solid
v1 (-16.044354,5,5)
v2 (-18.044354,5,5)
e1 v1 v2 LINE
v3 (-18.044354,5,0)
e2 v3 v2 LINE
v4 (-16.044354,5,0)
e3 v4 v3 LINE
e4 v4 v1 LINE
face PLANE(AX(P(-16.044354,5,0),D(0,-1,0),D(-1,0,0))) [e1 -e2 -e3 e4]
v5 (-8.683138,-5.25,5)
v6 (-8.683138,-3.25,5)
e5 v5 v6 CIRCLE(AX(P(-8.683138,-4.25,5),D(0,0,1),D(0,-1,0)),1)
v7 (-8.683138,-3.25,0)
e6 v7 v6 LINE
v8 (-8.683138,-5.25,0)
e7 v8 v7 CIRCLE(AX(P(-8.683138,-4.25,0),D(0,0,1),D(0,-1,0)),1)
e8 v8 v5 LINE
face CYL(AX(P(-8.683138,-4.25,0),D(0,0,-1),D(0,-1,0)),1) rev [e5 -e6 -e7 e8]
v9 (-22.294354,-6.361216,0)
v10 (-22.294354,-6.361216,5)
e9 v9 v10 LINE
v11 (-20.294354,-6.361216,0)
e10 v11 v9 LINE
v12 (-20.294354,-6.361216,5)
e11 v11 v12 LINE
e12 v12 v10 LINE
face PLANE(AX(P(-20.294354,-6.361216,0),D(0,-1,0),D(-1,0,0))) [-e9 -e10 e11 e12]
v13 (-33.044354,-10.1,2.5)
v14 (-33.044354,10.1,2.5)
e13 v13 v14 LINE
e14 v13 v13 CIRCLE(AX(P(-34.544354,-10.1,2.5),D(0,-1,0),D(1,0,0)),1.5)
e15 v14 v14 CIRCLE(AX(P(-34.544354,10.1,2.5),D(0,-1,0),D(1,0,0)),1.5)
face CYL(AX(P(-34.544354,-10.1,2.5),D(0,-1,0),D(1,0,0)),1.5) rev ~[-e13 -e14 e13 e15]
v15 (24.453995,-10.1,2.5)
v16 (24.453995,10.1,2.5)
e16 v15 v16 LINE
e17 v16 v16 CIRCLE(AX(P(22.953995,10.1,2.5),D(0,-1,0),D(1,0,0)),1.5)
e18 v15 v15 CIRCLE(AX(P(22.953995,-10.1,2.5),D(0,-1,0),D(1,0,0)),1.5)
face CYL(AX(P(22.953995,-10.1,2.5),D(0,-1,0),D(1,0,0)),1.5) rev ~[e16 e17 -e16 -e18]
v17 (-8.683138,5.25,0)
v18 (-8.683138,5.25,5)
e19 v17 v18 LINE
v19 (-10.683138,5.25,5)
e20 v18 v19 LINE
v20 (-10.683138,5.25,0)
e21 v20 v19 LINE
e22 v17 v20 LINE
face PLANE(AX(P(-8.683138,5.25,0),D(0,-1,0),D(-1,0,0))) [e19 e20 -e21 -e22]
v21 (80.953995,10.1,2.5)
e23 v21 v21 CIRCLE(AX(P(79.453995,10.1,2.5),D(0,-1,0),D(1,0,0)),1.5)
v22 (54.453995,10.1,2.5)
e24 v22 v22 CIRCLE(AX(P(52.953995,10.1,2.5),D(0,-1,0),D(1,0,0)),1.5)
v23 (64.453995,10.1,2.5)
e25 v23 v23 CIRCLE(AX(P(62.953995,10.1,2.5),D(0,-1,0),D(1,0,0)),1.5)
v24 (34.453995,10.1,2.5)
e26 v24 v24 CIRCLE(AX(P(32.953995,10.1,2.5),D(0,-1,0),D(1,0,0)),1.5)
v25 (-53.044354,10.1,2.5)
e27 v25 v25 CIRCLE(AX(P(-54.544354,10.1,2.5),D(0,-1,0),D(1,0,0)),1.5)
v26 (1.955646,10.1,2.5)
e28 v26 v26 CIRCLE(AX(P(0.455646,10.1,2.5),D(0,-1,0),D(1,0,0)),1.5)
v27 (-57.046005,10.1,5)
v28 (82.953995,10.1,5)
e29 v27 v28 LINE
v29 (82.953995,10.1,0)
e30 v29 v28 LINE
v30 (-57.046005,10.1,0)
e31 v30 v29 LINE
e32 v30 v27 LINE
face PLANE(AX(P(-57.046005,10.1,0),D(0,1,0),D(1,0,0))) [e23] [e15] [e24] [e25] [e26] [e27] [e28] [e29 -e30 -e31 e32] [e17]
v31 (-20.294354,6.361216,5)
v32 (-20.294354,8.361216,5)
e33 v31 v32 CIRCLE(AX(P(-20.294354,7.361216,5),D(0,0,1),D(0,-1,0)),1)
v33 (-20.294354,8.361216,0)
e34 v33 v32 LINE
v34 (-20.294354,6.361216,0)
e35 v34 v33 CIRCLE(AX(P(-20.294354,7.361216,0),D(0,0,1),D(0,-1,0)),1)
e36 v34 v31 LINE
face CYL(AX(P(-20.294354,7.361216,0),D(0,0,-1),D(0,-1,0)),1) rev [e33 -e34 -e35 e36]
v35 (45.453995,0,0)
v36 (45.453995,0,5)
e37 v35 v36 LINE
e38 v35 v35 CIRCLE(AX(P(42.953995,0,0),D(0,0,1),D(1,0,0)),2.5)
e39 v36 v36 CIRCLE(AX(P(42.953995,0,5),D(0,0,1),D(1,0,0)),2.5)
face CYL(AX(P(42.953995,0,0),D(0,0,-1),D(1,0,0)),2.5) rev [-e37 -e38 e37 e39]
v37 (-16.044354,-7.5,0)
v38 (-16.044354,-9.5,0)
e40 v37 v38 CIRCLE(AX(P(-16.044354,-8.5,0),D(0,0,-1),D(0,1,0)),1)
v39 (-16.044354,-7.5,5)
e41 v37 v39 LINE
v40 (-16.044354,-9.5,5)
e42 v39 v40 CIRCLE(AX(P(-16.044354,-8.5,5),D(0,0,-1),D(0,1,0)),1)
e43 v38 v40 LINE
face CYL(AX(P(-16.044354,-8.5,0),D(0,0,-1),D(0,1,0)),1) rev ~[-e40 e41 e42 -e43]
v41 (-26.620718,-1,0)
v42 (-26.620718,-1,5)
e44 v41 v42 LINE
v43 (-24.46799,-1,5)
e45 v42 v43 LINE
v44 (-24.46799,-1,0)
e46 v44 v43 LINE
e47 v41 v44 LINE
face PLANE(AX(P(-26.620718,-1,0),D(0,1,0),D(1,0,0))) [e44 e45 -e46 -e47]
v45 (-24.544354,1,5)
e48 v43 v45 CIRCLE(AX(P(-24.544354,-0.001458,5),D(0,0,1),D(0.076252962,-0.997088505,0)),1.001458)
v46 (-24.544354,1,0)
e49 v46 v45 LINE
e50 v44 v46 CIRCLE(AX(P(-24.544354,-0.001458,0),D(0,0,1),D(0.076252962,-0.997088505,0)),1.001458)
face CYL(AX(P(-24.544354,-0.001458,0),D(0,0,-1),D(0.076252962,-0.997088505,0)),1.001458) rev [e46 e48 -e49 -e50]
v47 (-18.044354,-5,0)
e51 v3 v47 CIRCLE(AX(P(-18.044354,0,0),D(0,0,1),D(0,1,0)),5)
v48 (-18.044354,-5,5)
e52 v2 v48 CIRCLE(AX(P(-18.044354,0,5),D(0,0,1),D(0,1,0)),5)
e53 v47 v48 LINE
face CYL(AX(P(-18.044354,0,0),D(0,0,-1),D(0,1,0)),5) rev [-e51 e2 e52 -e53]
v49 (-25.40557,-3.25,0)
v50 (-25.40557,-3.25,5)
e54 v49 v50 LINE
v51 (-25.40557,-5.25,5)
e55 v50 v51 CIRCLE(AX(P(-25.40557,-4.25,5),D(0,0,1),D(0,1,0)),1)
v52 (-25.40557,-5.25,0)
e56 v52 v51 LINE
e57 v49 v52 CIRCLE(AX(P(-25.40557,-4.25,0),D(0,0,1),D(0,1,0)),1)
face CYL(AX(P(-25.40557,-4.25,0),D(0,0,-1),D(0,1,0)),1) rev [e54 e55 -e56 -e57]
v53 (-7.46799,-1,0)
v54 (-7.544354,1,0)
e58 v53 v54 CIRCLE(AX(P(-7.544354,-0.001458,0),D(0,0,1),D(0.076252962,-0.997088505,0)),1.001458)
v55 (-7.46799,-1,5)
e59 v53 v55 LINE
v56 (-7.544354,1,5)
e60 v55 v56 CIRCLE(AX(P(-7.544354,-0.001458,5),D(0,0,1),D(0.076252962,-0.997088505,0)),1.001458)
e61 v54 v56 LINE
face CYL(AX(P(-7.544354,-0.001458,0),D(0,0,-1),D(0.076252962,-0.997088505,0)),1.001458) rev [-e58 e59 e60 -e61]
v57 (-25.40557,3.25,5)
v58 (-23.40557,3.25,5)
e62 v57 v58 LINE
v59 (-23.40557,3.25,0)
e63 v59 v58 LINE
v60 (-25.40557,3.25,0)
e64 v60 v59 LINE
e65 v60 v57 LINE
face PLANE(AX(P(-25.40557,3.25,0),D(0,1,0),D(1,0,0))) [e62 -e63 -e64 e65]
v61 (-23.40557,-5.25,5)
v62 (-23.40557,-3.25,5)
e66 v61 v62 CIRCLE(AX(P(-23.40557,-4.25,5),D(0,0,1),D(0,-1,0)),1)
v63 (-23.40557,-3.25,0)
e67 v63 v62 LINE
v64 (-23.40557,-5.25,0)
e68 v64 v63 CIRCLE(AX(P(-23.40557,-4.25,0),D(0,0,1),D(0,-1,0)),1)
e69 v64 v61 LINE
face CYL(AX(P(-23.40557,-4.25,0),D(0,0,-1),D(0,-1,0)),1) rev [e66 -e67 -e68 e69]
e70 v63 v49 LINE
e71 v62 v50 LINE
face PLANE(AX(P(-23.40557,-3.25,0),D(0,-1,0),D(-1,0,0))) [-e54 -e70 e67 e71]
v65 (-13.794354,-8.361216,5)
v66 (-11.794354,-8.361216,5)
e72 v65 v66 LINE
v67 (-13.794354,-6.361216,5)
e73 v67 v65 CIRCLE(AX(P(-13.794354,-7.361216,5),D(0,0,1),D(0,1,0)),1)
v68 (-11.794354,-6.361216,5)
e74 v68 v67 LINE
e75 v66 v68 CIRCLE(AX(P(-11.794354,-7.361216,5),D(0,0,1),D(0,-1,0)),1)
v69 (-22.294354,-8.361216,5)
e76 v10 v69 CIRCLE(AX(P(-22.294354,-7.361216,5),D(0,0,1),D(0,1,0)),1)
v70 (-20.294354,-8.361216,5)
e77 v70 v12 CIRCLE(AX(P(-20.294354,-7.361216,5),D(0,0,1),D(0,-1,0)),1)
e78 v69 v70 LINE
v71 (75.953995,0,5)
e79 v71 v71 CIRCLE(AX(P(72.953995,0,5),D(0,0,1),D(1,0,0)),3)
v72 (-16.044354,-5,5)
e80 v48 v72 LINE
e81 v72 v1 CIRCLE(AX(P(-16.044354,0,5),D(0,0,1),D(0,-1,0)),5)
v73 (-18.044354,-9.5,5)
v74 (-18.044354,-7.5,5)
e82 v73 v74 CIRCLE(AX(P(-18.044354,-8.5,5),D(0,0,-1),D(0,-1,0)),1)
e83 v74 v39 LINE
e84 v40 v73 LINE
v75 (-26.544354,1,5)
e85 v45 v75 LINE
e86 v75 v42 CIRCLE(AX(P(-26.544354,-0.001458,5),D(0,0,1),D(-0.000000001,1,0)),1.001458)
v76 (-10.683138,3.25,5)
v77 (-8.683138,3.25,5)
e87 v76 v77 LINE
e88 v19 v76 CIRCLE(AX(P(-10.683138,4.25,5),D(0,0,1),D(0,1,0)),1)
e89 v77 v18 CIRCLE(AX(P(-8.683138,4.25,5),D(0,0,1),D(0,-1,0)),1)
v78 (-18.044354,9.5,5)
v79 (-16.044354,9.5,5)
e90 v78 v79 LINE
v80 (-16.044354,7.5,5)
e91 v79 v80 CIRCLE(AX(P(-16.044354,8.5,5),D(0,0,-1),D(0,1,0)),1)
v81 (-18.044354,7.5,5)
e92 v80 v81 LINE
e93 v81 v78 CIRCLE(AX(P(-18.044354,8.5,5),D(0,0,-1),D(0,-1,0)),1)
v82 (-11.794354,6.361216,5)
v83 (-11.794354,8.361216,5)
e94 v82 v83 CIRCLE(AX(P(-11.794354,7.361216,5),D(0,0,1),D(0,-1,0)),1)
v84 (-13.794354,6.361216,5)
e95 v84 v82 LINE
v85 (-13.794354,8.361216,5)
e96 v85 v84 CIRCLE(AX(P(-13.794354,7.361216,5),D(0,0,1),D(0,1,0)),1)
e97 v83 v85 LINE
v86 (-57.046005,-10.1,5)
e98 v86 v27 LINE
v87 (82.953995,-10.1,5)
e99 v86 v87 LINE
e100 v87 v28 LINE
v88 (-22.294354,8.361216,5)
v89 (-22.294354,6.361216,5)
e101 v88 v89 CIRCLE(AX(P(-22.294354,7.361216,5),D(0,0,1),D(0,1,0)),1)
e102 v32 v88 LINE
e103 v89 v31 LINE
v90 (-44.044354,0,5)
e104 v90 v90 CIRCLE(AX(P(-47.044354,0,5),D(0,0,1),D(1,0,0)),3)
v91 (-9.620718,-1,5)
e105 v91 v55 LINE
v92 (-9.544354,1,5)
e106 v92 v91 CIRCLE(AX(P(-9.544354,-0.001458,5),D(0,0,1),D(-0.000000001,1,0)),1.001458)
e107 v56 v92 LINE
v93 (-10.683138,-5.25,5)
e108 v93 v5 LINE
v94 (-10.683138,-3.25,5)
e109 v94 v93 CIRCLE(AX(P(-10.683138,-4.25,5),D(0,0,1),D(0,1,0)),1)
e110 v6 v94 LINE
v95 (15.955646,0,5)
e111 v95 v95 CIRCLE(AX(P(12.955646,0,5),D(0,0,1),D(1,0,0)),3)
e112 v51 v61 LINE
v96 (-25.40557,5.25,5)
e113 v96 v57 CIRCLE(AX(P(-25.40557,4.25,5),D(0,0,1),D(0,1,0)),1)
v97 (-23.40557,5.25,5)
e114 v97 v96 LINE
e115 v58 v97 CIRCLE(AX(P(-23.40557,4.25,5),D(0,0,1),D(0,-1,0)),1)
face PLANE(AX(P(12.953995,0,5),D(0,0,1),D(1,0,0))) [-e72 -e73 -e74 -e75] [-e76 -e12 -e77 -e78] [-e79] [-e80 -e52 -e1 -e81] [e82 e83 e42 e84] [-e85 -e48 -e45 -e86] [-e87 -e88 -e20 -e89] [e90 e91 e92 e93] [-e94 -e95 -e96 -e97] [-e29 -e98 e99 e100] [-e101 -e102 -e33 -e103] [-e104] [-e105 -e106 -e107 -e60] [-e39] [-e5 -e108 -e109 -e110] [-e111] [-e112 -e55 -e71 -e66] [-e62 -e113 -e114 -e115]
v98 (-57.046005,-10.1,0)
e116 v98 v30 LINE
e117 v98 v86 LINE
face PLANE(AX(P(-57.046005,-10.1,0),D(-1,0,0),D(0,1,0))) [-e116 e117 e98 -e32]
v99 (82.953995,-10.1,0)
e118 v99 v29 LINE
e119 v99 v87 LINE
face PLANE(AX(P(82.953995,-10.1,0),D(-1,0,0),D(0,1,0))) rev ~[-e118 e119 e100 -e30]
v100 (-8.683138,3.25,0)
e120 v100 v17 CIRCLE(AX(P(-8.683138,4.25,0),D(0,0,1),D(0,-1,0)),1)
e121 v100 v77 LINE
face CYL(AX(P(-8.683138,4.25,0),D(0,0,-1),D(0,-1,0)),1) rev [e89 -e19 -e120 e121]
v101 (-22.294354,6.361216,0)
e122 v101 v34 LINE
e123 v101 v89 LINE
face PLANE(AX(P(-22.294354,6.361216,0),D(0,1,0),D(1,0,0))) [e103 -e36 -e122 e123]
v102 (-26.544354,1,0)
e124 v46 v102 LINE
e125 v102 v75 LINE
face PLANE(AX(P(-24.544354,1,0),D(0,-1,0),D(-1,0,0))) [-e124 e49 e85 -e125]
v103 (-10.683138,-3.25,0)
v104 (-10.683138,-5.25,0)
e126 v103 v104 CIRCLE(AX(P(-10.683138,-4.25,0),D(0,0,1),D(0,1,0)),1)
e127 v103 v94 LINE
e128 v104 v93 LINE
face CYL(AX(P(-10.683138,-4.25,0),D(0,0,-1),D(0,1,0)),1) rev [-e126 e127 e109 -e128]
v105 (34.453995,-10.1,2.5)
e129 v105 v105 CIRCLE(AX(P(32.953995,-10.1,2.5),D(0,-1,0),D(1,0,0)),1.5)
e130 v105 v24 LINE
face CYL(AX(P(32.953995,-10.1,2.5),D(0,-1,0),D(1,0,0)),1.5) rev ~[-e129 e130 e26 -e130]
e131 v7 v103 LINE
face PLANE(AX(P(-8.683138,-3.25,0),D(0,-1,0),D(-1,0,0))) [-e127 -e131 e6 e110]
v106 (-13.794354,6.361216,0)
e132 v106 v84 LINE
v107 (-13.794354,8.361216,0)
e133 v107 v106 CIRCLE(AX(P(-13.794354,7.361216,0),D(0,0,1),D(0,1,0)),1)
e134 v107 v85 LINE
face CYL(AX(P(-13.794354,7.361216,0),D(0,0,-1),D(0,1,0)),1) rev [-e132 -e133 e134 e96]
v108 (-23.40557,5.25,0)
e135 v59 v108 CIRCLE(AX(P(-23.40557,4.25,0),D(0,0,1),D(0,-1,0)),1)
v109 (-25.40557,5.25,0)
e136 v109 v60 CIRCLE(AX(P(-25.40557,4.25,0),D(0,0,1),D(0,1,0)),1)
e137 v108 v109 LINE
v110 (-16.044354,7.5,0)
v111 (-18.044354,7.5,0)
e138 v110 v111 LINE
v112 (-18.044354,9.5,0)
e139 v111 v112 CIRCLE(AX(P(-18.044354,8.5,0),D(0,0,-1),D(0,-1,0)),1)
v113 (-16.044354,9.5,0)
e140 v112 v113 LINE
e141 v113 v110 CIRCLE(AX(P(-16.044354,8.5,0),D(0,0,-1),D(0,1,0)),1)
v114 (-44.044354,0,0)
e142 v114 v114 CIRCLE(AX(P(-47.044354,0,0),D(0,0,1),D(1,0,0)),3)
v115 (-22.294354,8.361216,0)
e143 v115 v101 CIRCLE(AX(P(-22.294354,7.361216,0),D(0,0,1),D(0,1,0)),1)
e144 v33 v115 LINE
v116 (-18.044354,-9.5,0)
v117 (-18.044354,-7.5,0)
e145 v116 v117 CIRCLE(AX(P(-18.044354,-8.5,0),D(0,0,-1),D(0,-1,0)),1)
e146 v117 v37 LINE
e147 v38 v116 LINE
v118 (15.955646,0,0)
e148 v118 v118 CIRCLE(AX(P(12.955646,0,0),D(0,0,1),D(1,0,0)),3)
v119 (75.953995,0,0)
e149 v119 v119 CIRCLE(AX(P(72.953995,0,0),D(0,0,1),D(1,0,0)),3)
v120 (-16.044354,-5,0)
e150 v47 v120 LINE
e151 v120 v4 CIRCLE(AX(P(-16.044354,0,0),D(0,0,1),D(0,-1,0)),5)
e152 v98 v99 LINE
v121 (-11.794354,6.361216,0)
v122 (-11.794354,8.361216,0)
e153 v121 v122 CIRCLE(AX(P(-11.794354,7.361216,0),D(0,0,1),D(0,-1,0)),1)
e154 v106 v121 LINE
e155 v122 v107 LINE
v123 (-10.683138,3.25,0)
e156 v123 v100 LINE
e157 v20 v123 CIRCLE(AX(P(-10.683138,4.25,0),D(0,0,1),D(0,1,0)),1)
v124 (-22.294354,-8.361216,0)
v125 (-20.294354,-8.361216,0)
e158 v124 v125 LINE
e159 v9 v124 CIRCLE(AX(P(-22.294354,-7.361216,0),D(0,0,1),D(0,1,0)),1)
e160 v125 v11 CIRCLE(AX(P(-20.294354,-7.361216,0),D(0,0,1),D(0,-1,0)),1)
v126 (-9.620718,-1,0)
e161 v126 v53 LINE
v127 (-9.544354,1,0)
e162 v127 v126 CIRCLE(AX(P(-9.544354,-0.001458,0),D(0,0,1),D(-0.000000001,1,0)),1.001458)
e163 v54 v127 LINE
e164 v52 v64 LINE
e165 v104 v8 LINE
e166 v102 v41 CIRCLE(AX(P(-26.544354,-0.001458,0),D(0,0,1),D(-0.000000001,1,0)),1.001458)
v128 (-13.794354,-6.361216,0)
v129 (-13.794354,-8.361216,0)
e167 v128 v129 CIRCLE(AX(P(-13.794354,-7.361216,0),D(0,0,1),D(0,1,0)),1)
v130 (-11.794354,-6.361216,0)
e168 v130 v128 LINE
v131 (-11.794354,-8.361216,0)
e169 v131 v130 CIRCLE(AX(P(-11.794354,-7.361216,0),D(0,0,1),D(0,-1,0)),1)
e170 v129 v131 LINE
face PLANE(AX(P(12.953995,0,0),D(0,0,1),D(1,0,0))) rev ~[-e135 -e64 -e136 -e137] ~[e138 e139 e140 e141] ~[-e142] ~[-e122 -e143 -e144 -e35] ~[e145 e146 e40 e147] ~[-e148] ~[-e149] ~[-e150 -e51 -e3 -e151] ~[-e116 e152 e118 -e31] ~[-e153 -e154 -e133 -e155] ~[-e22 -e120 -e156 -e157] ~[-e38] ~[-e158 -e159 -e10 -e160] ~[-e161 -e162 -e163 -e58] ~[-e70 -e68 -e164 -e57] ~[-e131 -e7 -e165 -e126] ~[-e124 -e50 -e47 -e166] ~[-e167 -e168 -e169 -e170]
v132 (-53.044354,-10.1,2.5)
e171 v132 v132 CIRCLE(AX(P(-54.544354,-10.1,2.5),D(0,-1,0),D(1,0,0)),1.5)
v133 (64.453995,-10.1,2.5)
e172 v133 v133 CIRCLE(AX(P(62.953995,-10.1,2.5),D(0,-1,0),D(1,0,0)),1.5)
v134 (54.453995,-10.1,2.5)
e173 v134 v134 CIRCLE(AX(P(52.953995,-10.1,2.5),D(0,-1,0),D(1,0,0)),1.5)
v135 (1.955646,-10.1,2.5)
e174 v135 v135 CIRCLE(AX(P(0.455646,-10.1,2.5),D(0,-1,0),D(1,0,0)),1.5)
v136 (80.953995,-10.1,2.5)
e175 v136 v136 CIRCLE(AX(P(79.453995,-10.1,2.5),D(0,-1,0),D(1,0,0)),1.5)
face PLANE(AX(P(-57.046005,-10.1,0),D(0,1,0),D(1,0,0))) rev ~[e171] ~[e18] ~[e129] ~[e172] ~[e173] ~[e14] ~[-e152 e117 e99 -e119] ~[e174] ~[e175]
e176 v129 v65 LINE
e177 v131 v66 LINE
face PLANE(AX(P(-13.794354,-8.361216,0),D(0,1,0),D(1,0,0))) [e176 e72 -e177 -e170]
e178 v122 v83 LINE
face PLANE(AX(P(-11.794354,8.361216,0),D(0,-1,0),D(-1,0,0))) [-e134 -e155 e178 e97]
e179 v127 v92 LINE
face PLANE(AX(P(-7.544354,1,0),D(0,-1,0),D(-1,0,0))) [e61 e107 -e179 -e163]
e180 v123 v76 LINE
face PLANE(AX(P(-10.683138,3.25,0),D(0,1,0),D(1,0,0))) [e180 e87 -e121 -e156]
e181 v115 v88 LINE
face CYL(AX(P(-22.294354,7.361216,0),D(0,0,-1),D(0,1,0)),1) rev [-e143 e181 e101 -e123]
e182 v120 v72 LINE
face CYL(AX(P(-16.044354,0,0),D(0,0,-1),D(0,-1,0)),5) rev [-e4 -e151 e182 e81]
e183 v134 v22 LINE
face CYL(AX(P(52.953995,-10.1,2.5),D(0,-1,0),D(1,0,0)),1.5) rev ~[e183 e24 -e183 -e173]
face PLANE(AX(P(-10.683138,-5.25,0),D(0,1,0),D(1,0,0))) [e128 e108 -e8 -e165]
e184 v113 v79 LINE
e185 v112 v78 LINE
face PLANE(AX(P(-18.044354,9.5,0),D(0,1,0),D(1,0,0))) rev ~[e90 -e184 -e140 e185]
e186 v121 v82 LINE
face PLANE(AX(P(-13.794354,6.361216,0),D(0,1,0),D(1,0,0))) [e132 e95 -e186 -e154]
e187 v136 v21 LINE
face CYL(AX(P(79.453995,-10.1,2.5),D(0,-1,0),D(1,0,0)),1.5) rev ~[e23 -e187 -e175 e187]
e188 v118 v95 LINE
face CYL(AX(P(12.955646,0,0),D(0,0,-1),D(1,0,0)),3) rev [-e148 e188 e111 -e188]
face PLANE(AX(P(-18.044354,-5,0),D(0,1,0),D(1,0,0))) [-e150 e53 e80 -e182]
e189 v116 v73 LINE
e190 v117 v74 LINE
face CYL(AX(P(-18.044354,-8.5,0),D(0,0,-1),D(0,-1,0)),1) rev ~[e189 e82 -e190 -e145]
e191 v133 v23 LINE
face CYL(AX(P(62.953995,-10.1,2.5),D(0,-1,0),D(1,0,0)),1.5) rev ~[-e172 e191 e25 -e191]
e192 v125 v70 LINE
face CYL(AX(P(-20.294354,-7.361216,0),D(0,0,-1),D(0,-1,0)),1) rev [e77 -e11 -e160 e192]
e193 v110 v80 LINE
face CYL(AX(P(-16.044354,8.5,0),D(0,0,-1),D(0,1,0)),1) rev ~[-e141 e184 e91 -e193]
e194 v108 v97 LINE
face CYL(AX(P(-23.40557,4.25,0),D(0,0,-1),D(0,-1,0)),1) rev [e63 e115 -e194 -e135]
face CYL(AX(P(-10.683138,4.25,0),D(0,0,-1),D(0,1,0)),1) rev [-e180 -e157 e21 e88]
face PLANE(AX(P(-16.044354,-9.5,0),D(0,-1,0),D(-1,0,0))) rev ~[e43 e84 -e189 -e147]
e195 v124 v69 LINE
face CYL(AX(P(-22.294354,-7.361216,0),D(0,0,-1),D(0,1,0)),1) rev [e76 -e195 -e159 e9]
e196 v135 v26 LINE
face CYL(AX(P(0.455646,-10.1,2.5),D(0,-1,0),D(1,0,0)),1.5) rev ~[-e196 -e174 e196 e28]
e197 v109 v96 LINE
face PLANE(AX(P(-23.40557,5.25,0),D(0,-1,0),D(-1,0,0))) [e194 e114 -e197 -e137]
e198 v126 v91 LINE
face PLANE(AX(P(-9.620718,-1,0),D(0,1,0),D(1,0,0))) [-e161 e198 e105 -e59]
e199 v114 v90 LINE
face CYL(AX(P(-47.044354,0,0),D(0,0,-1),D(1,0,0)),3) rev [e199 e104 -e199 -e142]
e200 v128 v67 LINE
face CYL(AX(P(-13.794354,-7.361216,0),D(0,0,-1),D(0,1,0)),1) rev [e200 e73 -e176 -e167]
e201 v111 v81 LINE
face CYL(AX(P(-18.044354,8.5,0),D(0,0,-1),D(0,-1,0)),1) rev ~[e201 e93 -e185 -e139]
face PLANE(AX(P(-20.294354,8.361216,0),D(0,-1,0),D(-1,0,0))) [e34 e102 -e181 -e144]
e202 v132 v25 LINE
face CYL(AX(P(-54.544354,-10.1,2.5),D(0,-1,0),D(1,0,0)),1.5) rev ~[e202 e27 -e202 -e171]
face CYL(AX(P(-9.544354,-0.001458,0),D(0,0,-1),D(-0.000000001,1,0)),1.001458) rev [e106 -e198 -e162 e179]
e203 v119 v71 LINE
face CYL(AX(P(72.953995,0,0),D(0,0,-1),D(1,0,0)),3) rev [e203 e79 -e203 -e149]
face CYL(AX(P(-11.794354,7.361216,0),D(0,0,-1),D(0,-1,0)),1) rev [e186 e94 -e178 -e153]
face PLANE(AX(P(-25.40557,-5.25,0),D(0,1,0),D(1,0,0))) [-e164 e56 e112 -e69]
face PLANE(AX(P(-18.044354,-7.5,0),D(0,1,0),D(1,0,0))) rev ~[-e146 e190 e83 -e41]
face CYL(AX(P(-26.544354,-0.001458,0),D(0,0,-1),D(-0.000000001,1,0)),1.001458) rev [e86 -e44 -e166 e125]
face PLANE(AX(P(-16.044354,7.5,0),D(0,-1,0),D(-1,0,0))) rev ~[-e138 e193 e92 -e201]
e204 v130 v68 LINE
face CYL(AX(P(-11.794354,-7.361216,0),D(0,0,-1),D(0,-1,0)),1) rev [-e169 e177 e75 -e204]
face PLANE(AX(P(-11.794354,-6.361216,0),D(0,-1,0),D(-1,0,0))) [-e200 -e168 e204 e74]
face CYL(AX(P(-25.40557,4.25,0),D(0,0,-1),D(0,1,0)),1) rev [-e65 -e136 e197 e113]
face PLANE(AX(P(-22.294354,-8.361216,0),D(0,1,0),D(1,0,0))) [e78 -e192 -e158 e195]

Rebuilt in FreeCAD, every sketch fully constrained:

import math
import FreeCAD as App
import Part
import Sketcher
from FreeCAD import Vector
Q = App.Units.Quantity


def add_polygon(sketch, points):
    """Adds a closed chain of lines whose ends are joined by coincident constraints."""
    first, n = sketch.GeometryCount, len(points)
    for a, b in zip(points, points[1:] + points[:1]):
        sketch.addGeometry(Part.LineSegment(App.Vector(*a, 0), App.Vector(*b, 0)), False)
    for i in range(n):
        sketch.addConstraint(Sketcher.Constraint("Coincident", first + i, 2, first + (i + 1) % n, 1))

doc = App.newDocument("Part")
body = doc.addObject("PartDesign::Body", "Body")

# Sketch on XY plane
sketch1 = body.newObject("Sketcher::SketchObject", "Sketch")
sketch1.AttachmentSupport = (doc.getObject("XY_Plane"), [""])
sketch1.MapMode = "FlatFace"
add_polygon(sketch1, [(-57, 10.1), (-57, -10.1), (83, -10.1), (83, 10.1)])  # lines 0-3
sketch1.addGeometry(Part.LineSegment(Vector(-22.3, -6.4, 0), Vector(-20.3, -6.4, 0)), False)  # 4
sketch1.addGeometry(Part.ArcOfCircle(Part.Circle(Vector(-20.3, -7.4, 0), Vector(0, 0, 1), 1), math.radians(-90), math.radians(90)), False)  # 5
sketch1.addGeometry(Part.LineSegment(Vector(-20.3, -8.4, 0), Vector(-22.3, -8.4, 0)), False)  # 6
sketch1.addGeometry(Part.ArcOfCircle(Part.Circle(Vector(-22.3, -7.4, 0), Vector(0, 0, 1), 1), math.radians(90), math.radians(270)), False)  # 7
sketch1.addGeometry(Part.ArcOfCircle(Part.Circle(Vector(-16, -8.5, 0), Vector(0, 0, 1), 1), math.radians(-90), math.radians(90)), False)  # 8
sketch1.addGeometry(Part.LineSegment(Vector(-16, -9.5, 0), Vector(-18, -9.5, 0)), False)  # 9
sketch1.addGeometry(Part.ArcOfCircle(Part.Circle(Vector(-18, -8.5, 0), Vector(0, 0, 1), 1), math.radians(90), math.radians(270)), False)  # 10
sketch1.addGeometry(Part.LineSegment(Vector(-18, -7.5, 0), Vector(-16, -7.5, 0)), False)  # 11
sketch1.addGeometry(Part.LineSegment(Vector(-11.8, -8.4, 0), Vector(-13.8, -8.4, 0)), False)  # 12
sketch1.addGeometry(Part.ArcOfCircle(Part.Circle(Vector(-13.8, -7.4, 0), Vector(0, 0, 1), 1), math.radians(90), math.radians(270)), False)  # 13
sketch1.addGeometry(Part.LineSegment(Vector(-13.8, -6.4, 0), Vector(-11.8, -6.4, 0)), False)  # 14
sketch1.addGeometry(Part.ArcOfCircle(Part.Circle(Vector(-11.8, -7.4, 0), Vector(0, 0, 1), 1), math.radians(-90), math.radians(90)), False)  # 15
sketch1.addGeometry(Part.LineSegment(Vector(-25.4, -3.2, 0), Vector(-23.4, -3.2, 0)), False)  # 16
sketch1.addGeometry(Part.ArcOfCircle(Part.Circle(Vector(-23.4, -4.2, 0), Vector(0, 0, 1), 1), math.radians(-90), math.radians(90)), False)  # 17
sketch1.addGeometry(Part.LineSegment(Vector(-23.4, -5.2, 0), Vector(-25.4, -5.2, 0)), False)  # 18
sketch1.addGeometry(Part.ArcOfCircle(Part.Circle(Vector(-25.4, -4.2, 0), Vector(0, 0, 1), 1), math.radians(90), math.radians(270)), False)  # 19
sketch1.addGeometry(Part.LineSegment(Vector(-8.7, -5.2, 0), Vector(-10.7, -5.2, 0)), False)  # 20
sketch1.addGeometry(Part.ArcOfCircle(Part.Circle(Vector(-10.7, -4.2, 0), Vector(0, 0, 1), 1), math.radians(90), math.radians(270)), False)  # 21
sketch1.addGeometry(Part.LineSegment(Vector(-10.7, -3.2, 0), Vector(-8.7, -3.2, 0)), False)  # 22
sketch1.addGeometry(Part.ArcOfCircle(Part.Circle(Vector(-8.7, -4.2, 0), Vector(0, 0, 1), 1), math.radians(-90), math.radians(90)), False)  # 23
sketch1.addGeometry(Part.Circle(Vector(-47, 0, 0), Vector(0, 0, 1), 3), False)  # 24
sketch1.addGeometry(Part.LineSegment(Vector(-26.5, 1, 0), Vector(-24.5, 1, 0)), False)  # 25
sketch1.addGeometry(Part.ArcOfCircle(Part.Circle(Vector(-24.5, 0, 0), Vector(0, 0, 1), 1), math.radians(-86), math.radians(90)), False)  # 26
sketch1.addGeometry(Part.LineSegment(Vector(-24.5, -1, 0), Vector(-26.6, -1, 0)), False)  # 27
sketch1.addGeometry(Part.ArcOfCircle(Part.Circle(Vector(-26.5, 0, 0), Vector(0, 0, 1), 1), math.radians(90), math.radians(266)), False)  # 28
sketch1.addGeometry(Part.LineSegment(Vector(-25.4, 5.2, 0), Vector(-23.4, 5.2, 0)), False)  # 29
sketch1.addGeometry(Part.ArcOfCircle(Part.Circle(Vector(-23.4, 4.2, 0), Vector(0, 0, 1), 1), math.radians(-90), math.radians(90)), False)  # 30
sketch1.addGeometry(Part.LineSegment(Vector(-23.4, 3.2, 0), Vector(-25.4, 3.2, 0)), False)  # 31
sketch1.addGeometry(Part.ArcOfCircle(Part.Circle(Vector(-25.4, 4.2, 0), Vector(0, 0, 1), 1), math.radians(90), math.radians(270)), False)  # 32
sketch1.addGeometry(Part.LineSegment(Vector(-18, 5, 0), Vector(-16, 5, 0)), False)  # 33
sketch1.addGeometry(Part.ArcOfCircle(Part.Circle(Vector(-16, 0, 0), Vector(0, 0, 1), 5), math.radians(-90), math.radians(90)), False)  # 34
sketch1.addGeometry(Part.LineSegment(Vector(-16, -5, 0), Vector(-18, -5, 0)), False)  # 35
sketch1.addGeometry(Part.ArcOfCircle(Part.Circle(Vector(-18, 0, 0), Vector(0, 0, 1), 5), math.radians(90), math.radians(270)), False)  # 36
sketch1.addGeometry(Part.LineSegment(Vector(-7.5, -1, 0), Vector(-9.6, -1, 0)), False)  # 37
sketch1.addGeometry(Part.ArcOfCircle(Part.Circle(Vector(-9.5, 0, 0), Vector(0, 0, 1), 1), math.radians(90), math.radians(266)), False)  # 38
sketch1.addGeometry(Part.LineSegment(Vector(-9.5, 1, 0), Vector(-7.5, 1, 0)), False)  # 39
sketch1.addGeometry(Part.ArcOfCircle(Part.Circle(Vector(-7.5, 0, 0), Vector(0, 0, 1), 1), math.radians(-86), math.radians(90)), False)  # 40
sketch1.addGeometry(Part.LineSegment(Vector(-8.7, 3.2, 0), Vector(-10.7, 3.2, 0)), False)  # 41
sketch1.addGeometry(Part.ArcOfCircle(Part.Circle(Vector(-10.7, 4.2, 0), Vector(0, 0, 1), 1), math.radians(90), math.radians(270)), False)  # 42
sketch1.addGeometry(Part.LineSegment(Vector(-10.7, 5.2, 0), Vector(-8.7, 5.2, 0)), False)  # 43
sketch1.addGeometry(Part.ArcOfCircle(Part.Circle(Vector(-8.7, 4.2, 0), Vector(0, 0, 1), 1), math.radians(-90), math.radians(90)), False)  # 44
sketch1.addGeometry(Part.LineSegment(Vector(-22.3, 8.4, 0), Vector(-20.3, 8.4, 0)), False)  # 45
sketch1.addGeometry(Part.ArcOfCircle(Part.Circle(Vector(-20.3, 7.4, 0), Vector(0, 0, 1), 1), math.radians(-90), math.radians(90)), False)  # 46
sketch1.addGeometry(Part.LineSegment(Vector(-20.3, 6.4, 0), Vector(-22.3, 6.4, 0)), False)  # 47
sketch1.addGeometry(Part.ArcOfCircle(Part.Circle(Vector(-22.3, 7.4, 0), Vector(0, 0, 1), 1), math.radians(90), math.radians(270)), False)  # 48
sketch1.addGeometry(Part.LineSegment(Vector(-11.8, 6.4, 0), Vector(-13.8, 6.4, 0)), False)  # 49
sketch1.addGeometry(Part.ArcOfCircle(Part.Circle(Vector(-13.8, 7.4, 0), Vector(0, 0, 1), 1), math.radians(90), math.radians(270)), False)  # 50
sketch1.addGeometry(Part.LineSegment(Vector(-13.8, 8.4, 0), Vector(-11.8, 8.4, 0)), False)  # 51
sketch1.addGeometry(Part.ArcOfCircle(Part.Circle(Vector(-11.8, 7.4, 0), Vector(0, 0, 1), 1), math.radians(-90), math.radians(90)), False)  # 52
sketch1.addGeometry(Part.ArcOfCircle(Part.Circle(Vector(-16, 8.5, 0), Vector(0, 0, 1), 1), math.radians(-90), math.radians(90)), False)  # 53
sketch1.addGeometry(Part.LineSegment(Vector(-16, 7.5, 0), Vector(-18, 7.5, 0)), False)  # 54
sketch1.addGeometry(Part.ArcOfCircle(Part.Circle(Vector(-18, 8.5, 0), Vector(0, 0, 1), 1), math.radians(90), math.radians(270)), False)  # 55
sketch1.addGeometry(Part.LineSegment(Vector(-18, 9.5, 0), Vector(-16, 9.5, 0)), False)  # 56
sketch1.addGeometry(Part.Circle(Vector(13, 0, 0), Vector(0, 0, 1), 3), False)  # 57
sketch1.addGeometry(Part.Circle(Vector(43, 0, 0), Vector(0, 0, 1), 2.5), False)  # 58
sketch1.addGeometry(Part.Circle(Vector(73, 0, 0), Vector(0, 0, 1), 3), False)  # 59
sketch1.addConstraint(Sketcher.Constraint("Tangent", 4, 2, 5, 2))
sketch1.addConstraint(Sketcher.Constraint("Tangent", 5, 1, 6, 1))
sketch1.addConstraint(Sketcher.Constraint("Tangent", 6, 2, 7, 2))
sketch1.addConstraint(Sketcher.Constraint("Tangent", 7, 1, 4, 1))
sketch1.addConstraint(Sketcher.Constraint("Tangent", 8, 1, 9, 1))
sketch1.addConstraint(Sketcher.Constraint("Tangent", 9, 2, 10, 2))
sketch1.addConstraint(Sketcher.Constraint("Tangent", 10, 1, 11, 1))
sketch1.addConstraint(Sketcher.Constraint("Tangent", 11, 2, 8, 2))
sketch1.addConstraint(Sketcher.Constraint("Tangent", 12, 2, 13, 2))
sketch1.addConstraint(Sketcher.Constraint("Tangent", 13, 1, 14, 1))
sketch1.addConstraint(Sketcher.Constraint("Tangent", 14, 2, 15, 2))
sketch1.addConstraint(Sketcher.Constraint("Tangent", 15, 1, 12, 1))
sketch1.addConstraint(Sketcher.Constraint("Tangent", 16, 2, 17, 2))
sketch1.addConstraint(Sketcher.Constraint("Tangent", 17, 1, 18, 1))
sketch1.addConstraint(Sketcher.Constraint("Tangent", 18, 2, 19, 2))
sketch1.addConstraint(Sketcher.Constraint("Tangent", 19, 1, 16, 1))
sketch1.addConstraint(Sketcher.Constraint("Tangent", 20, 2, 21, 2))
sketch1.addConstraint(Sketcher.Constraint("Tangent", 21, 1, 22, 1))
sketch1.addConstraint(Sketcher.Constraint("Tangent", 22, 2, 23, 2))
sketch1.addConstraint(Sketcher.Constraint("Tangent", 23, 1, 20, 1))
sketch1.addConstraint(Sketcher.Constraint("Tangent", 25, 2, 26, 2))
sketch1.addConstraint(Sketcher.Constraint("Coincident", 26, 1, 27, 1))
sketch1.addConstraint(Sketcher.Constraint("Coincident", 27, 2, 28, 2))
sketch1.addConstraint(Sketcher.Constraint("Tangent", 28, 1, 25, 1))
sketch1.addConstraint(Sketcher.Constraint("Tangent", 29, 2, 30, 2))
sketch1.addConstraint(Sketcher.Constraint("Tangent", 30, 1, 31, 1))
sketch1.addConstraint(Sketcher.Constraint("Tangent", 31, 2, 32, 2))
sketch1.addConstraint(Sketcher.Constraint("Tangent", 32, 1, 29, 1))
sketch1.addConstraint(Sketcher.Constraint("Tangent", 33, 2, 34, 2))
sketch1.addConstraint(Sketcher.Constraint("Tangent", 34, 1, 35, 1))
sketch1.addConstraint(Sketcher.Constraint("Tangent", 35, 2, 36, 2))
sketch1.addConstraint(Sketcher.Constraint("Tangent", 36, 1, 33, 1))
sketch1.addConstraint(Sketcher.Constraint("Coincident", 37, 2, 38, 2))
sketch1.addConstraint(Sketcher.Constraint("Tangent", 38, 1, 39, 1))
sketch1.addConstraint(Sketcher.Constraint("Tangent", 39, 2, 40, 2))
sketch1.addConstraint(Sketcher.Constraint("Coincident", 40, 1, 37, 1))
sketch1.addConstraint(Sketcher.Constraint("Tangent", 41, 2, 42, 2))
sketch1.addConstraint(Sketcher.Constraint("Tangent", 42, 1, 43, 1))
sketch1.addConstraint(Sketcher.Constraint("Tangent", 43, 2, 44, 2))
sketch1.addConstraint(Sketcher.Constraint("Tangent", 44, 1, 41, 1))
sketch1.addConstraint(Sketcher.Constraint("Tangent", 45, 2, 46, 2))
sketch1.addConstraint(Sketcher.Constraint("Tangent", 46, 1, 47, 1))
sketch1.addConstraint(Sketcher.Constraint("Tangent", 47, 2, 48, 2))
sketch1.addConstraint(Sketcher.Constraint("Tangent", 48, 1, 45, 1))
sketch1.addConstraint(Sketcher.Constraint("Tangent", 49, 2, 50, 2))
sketch1.addConstraint(Sketcher.Constraint("Tangent", 50, 1, 51, 1))
sketch1.addConstraint(Sketcher.Constraint("Tangent", 51, 2, 52, 2))
sketch1.addConstraint(Sketcher.Constraint("Tangent", 52, 1, 49, 1))
sketch1.addConstraint(Sketcher.Constraint("Tangent", 53, 1, 54, 1))
sketch1.addConstraint(Sketcher.Constraint("Tangent", 54, 2, 55, 2))
sketch1.addConstraint(Sketcher.Constraint("Tangent", 55, 1, 56, 1))
sketch1.addConstraint(Sketcher.Constraint("Tangent", 56, 2, 53, 2))
sketch1.addConstraint(Sketcher.Constraint("Vertical", 0))
sketch1.addConstraint(Sketcher.Constraint("Horizontal", 1))
sketch1.addConstraint(Sketcher.Constraint("Vertical", 2))
sketch1.addConstraint(Sketcher.Constraint("Horizontal", 3))
sketch1.addConstraint(Sketcher.Constraint("Horizontal", 4))
sketch1.addConstraint(Sketcher.Constraint("Horizontal", 6))
sketch1.addConstraint(Sketcher.Constraint("Horizontal", 9))
sketch1.addConstraint(Sketcher.Constraint("Horizontal", 11))
sketch1.addConstraint(Sketcher.Constraint("Horizontal", 12))
sketch1.addConstraint(Sketcher.Constraint("Horizontal", 14))
sketch1.addConstraint(Sketcher.Constraint("Horizontal", 16))
sketch1.addConstraint(Sketcher.Constraint("Horizontal", 18))
sketch1.addConstraint(Sketcher.Constraint("Horizontal", 20))
sketch1.addConstraint(Sketcher.Constraint("Horizontal", 22))
sketch1.addConstraint(Sketcher.Constraint("Horizontal", 25))
sketch1.addConstraint(Sketcher.Constraint("Horizontal", 27))
sketch1.addConstraint(Sketcher.Constraint("Horizontal", 29))
sketch1.addConstraint(Sketcher.Constraint("Horizontal", 31))
sketch1.addConstraint(Sketcher.Constraint("Horizontal", 33))
sketch1.addConstraint(Sketcher.Constraint("Horizontal", 35))
sketch1.addConstraint(Sketcher.Constraint("Horizontal", 37))
sketch1.addConstraint(Sketcher.Constraint("Horizontal", 39))
sketch1.addConstraint(Sketcher.Constraint("Horizontal", 41))
sketch1.addConstraint(Sketcher.Constraint("Horizontal", 43))
sketch1.addConstraint(Sketcher.Constraint("Horizontal", 45))
sketch1.addConstraint(Sketcher.Constraint("Horizontal", 47))
sketch1.addConstraint(Sketcher.Constraint("Horizontal", 49))
sketch1.addConstraint(Sketcher.Constraint("Horizontal", 51))
sketch1.addConstraint(Sketcher.Constraint("Horizontal", 54))
sketch1.addConstraint(Sketcher.Constraint("Horizontal", 56))
sketch1.addConstraint(Sketcher.Constraint("Equal", 7, 8))
sketch1.addConstraint(Sketcher.Constraint("Equal", 10, 13))
sketch1.addConstraint(Sketcher.Constraint("Equal", 15, 17))
sketch1.addConstraint(Sketcher.Constraint("Equal", 19, 21))
sketch1.addConstraint(Sketcher.Constraint("Equal", 26, 28))
sketch1.addConstraint(Sketcher.Constraint("Equal", 23, 30))
sketch1.addConstraint(Sketcher.Constraint("Equal", 28, 38))
sketch1.addConstraint(Sketcher.Constraint("Equal", 38, 40))
sketch1.addConstraint(Sketcher.Constraint("Equal", 32, 42))
sketch1.addConstraint(Sketcher.Constraint("Equal", 44, 46))
sketch1.addConstraint(Sketcher.Constraint("Equal", 48, 50))
sketch1.addConstraint(Sketcher.Constraint("Equal", 52, 53))
sketch1.addConstraint(Sketcher.Constraint("Equal", 24, 57))
sketch1.addConstraint(Sketcher.Constraint("Equal", 57, 59))
sketch1.addConstraint(Sketcher.Constraint("Symmetric", 17, 3, 30, 3, -1))
sketch1.addConstraint(Sketcher.Constraint("Symmetric", 21, 3, 42, 3, -1))
sketch1.addConstraint(Sketcher.Constraint("Symmetric", 5, 3, 46, 3, -1))
sketch1.addConstraint(Sketcher.Constraint("Symmetric", 13, 3, 50, 3, -1))
sketch1.addConstraint(Sketcher.Constraint("Symmetric", 8, 3, 53, 3, -1))
sketch1.addConstraint(Sketcher.Constraint("PointOnObject", 24, 3, -1))
sketch1.addConstraint(Sketcher.Constraint("PointOnObject", 34, 3, -1))
sketch1.addConstraint(Sketcher.Constraint("PointOnObject", 57, 3, -1))
sketch1.addConstraint(Sketcher.Constraint("PointOnObject", 58, 3, -1))
sketch1.addConstraint(Sketcher.Constraint("PointOnObject", 59, 3, -1))
sketch1.addConstraint(Sketcher.Constraint("Horizontal", 7, 3, 13, 3))
sketch1.addConstraint(Sketcher.Constraint("Horizontal", 19, 3, 21, 3))
sketch1.addConstraint(Sketcher.Constraint("Horizontal", 28, 3, 38, 3))
sketch1.addConstraint(Sketcher.Constraint("Horizontal", 27, 2, 37, 2))
sketch1.addConstraint(Sketcher.Constraint("Vertical", 19, 3, 32, 3))
sketch1.addConstraint(Sketcher.Constraint("Vertical", 8, 3, 34, 3))
sketch1.addConstraint(Sketcher.Constraint("Vertical", 10, 3, 36, 3))
sketch1.addConstraint(Sketcher.Constraint("Vertical", 23, 3, 44, 3))
sketch1.addConstraint(Sketcher.Constraint("Vertical", 7, 3, 48, 3))
sketch1.addConstraint(Sketcher.Constraint("Vertical", 15, 3, 52, 3))
sketch1.addConstraint(Sketcher.Constraint("Vertical", 36, 3, 55, 3))
sketch1.addConstraint(Sketcher.Constraint("Equal", 6, 9))
sketch1.addConstraint(Sketcher.Constraint("Equal", 11, 12))
sketch1.addConstraint(Sketcher.Constraint("Equal", 14, 16))
sketch1.addConstraint(Sketcher.Constraint("Equal", 18, 20))
sketch1.addConstraint(Sketcher.Constraint("Equal", 22, 25))
sketch1.addConstraint(Sketcher.Constraint("Equal", 27, 37))
sketch1.addConstraint(Sketcher.Constraint("Diameter", 24, Q("6 mm")))
sketch1.addConstraint(Sketcher.Constraint("Diameter", 58, Q("5 mm")))
sketch1.addConstraint(Sketcher.Constraint("Radius", 5, Q("1 mm")))
sketch1.addConstraint(Sketcher.Constraint("Radius", 34, Q("5 mm")))
sketch1.addConstraint(Sketcher.Constraint("DistanceX", 1, 1, 1, 2, Q("140 mm")))
sketch1.addConstraint(Sketcher.Constraint("DistanceX", 4, 1, 4, 2, Q("2 mm")))
sketch1.addConstraint(Sketcher.Constraint("DistanceY", 0, 2, 0, 1, Q("20.2 mm")))
sketch1.addConstraint(Sketcher.Constraint("DistanceY", -1, 1, 25, 2, Q("1 mm")))
sketch1.addConstraint(Sketcher.Constraint("DistanceY", 26, 1, -1, 1, Q("1 mm")))
sketch1.addConstraint(Sketcher.Constraint("DistanceY", 8, 3, -1, 1, Q("8.5 mm")))
sketch1.addConstraint(Sketcher.Constraint("DistanceY", 0, 2, -1, 1, Q("10.1 mm")))
sketch1.addConstraint(Sketcher.Constraint("DistanceY", 17, 3, -1, 1, Q("4.25 mm")))
sketch1.addConstraint(Sketcher.Constraint("Radius", 26, Q("1.001458 mm")))
sketch1.addConstraint(Sketcher.Constraint("DistanceX", 17, 3, -1, 1, Q("23.40557 mm")))
sketch1.addConstraint(Sketcher.Constraint("DistanceX", 26, 1, -1, 1, Q("24.46799 mm")))
sketch1.addConstraint(Sketcher.Constraint("DistanceX", 37, 2, -1, 1, Q("9.620718 mm")))
sketch1.addConstraint(Sketcher.Constraint("DistanceX", 5, 3, -1, 1, Q("20.294354 mm")))
sketch1.addConstraint(Sketcher.Constraint("DistanceY", 5, 3, -1, 1, Q("7.361216 mm")))
sketch1.addConstraint(Sketcher.Constraint("DistanceX", 8, 3, -1, 1, Q("16.044354 mm")))
sketch1.addConstraint(Sketcher.Constraint("DistanceX", 13, 3, -1, 1, Q("13.794354 mm")))
sketch1.addConstraint(Sketcher.Constraint("DistanceX", 21, 3, -1, 1, Q("10.683138 mm")))
sketch1.addConstraint(Sketcher.Constraint("DistanceX", 24, 3, -1, 1, Q("47.044354 mm")))
sketch1.addConstraint(Sketcher.Constraint("DistanceX", -1, 1, 57, 3, Q("12.955646 mm")))
sketch1.addConstraint(Sketcher.Constraint("DistanceX", -1, 1, 58, 3, Q("42.953995 mm")))
sketch1.addConstraint(Sketcher.Constraint("DistanceX", -1, 1, 59, 3, Q("72.953995 mm")))
sketch1.addConstraint(Sketcher.Constraint("DistanceX", 0, 2, -1, 1, Q("57.046005 mm")))
pad1 = body.newObject("PartDesign::Pad", "Pad")
pad1.Profile = sketch1
pad1.Length = 5

# Sketch on XZ plane
sketch2 = body.newObject("Sketcher::SketchObject", "Sketch001")
sketch2.AttachmentSupport = (doc.getObject("XZ_Plane"), [""])
sketch2.MapMode = "FlatFace"
sketch2.AttachmentOffset = App.Placement(Vector(0, 0, 10.1), App.Rotation())
sketch2.addGeometry(Part.Circle(Vector(79.5, 2.5, 0), Vector(0, 0, 1), 1.5), False)
sketch2.addGeometry(Part.Circle(Vector(63, 2.5, 0), Vector(0, 0, 1), 1.5), False)
sketch2.addGeometry(Part.Circle(Vector(53, 2.5, 0), Vector(0, 0, 1), 1.5), False)
sketch2.addGeometry(Part.Circle(Vector(33, 2.5, 0), Vector(0, 0, 1), 1.5), False)
sketch2.addGeometry(Part.Circle(Vector(23, 2.5, 0), Vector(0, 0, 1), 1.5), False)
sketch2.addGeometry(Part.Circle(Vector(0.5, 2.5, 0), Vector(0, 0, 1), 1.5), False)
sketch2.addGeometry(Part.Circle(Vector(-34.5, 2.5, 0), Vector(0, 0, 1), 1.5), False)
sketch2.addGeometry(Part.Circle(Vector(-54.5, 2.5, 0), Vector(0, 0, 1), 1.5), False)
sketch2.addConstraint(Sketcher.Constraint("Equal", 0, 1))
sketch2.addConstraint(Sketcher.Constraint("Equal", 1, 2))
sketch2.addConstraint(Sketcher.Constraint("Equal", 2, 3))
sketch2.addConstraint(Sketcher.Constraint("Equal", 3, 4))
sketch2.addConstraint(Sketcher.Constraint("Equal", 4, 5))
sketch2.addConstraint(Sketcher.Constraint("Equal", 5, 6))
sketch2.addConstraint(Sketcher.Constraint("Equal", 6, 7))
sketch2.addConstraint(Sketcher.Constraint("Horizontal", 0, 3, 1, 3))
sketch2.addConstraint(Sketcher.Constraint("Horizontal", 1, 3, 2, 3))
sketch2.addConstraint(Sketcher.Constraint("Horizontal", 2, 3, 3, 3))
sketch2.addConstraint(Sketcher.Constraint("Horizontal", 3, 3, 4, 3))
sketch2.addConstraint(Sketcher.Constraint("Horizontal", 4, 3, 5, 3))
sketch2.addConstraint(Sketcher.Constraint("Horizontal", 5, 3, 6, 3))
sketch2.addConstraint(Sketcher.Constraint("Horizontal", 6, 3, 7, 3))
sketch2.addConstraint(Sketcher.Constraint("Diameter", 0, Q("3 mm")))
sketch2.addConstraint(Sketcher.Constraint("DistanceX", 2, 3, 1, 3, Q("10 mm")))
sketch2.addConstraint(Sketcher.Constraint("DistanceX", 3, 3, 2, 3, Q("20 mm")))
sketch2.addConstraint(Sketcher.Constraint("DistanceX", 4, 3, 3, 3, Q("10 mm")))
sketch2.addConstraint(Sketcher.Constraint("DistanceX", 6, 3, 5, 3, Q("35 mm")))
sketch2.addConstraint(Sketcher.Constraint("DistanceX", 7, 3, 6, 3, Q("20 mm")))
sketch2.addConstraint(Sketcher.Constraint("DistanceY", -1, 1, 0, 3, Q("2.5 mm")))
sketch2.addConstraint(Sketcher.Constraint("DistanceX", 1, 3, 0, 3, Q("16.5 mm")))
sketch2.addConstraint(Sketcher.Constraint("DistanceX", 5, 3, 4, 3, Q("22.498348 mm")))
sketch2.addConstraint(Sketcher.Constraint("DistanceX", -1, 1, 0, 3, Q("79.453995 mm")))
pocket1 = body.newObject("PartDesign::Pocket", "Pocket")
pocket1.Profile = sketch2
pocket1.Length = 41

doc.recompute()
